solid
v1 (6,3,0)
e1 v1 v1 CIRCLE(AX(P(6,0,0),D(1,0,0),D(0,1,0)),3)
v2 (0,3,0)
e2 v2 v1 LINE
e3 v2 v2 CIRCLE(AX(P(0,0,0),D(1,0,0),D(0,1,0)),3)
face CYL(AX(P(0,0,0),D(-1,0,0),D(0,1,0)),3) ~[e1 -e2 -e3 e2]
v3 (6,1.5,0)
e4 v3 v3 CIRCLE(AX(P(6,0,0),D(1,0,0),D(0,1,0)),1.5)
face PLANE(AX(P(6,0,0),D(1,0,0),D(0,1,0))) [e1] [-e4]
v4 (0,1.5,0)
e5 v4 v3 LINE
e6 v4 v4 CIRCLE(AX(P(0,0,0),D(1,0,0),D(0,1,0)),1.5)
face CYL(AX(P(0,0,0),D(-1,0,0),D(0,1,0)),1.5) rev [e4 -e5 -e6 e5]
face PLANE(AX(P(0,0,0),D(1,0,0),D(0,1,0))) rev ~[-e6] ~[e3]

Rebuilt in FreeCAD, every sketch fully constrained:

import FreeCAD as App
import Part
import Sketcher

V = App.Vector
Q = App.Units.Quantity

doc = App.newDocument("Part")
body = doc.addObject("PartDesign::Body", "Body")

# Sketch on YZ plane
sketch1 = doc.addObject("Sketcher::SketchObject", "Sketch")
body.addObject(sketch1)
sketch1.AttachmentSupport = (doc.YZ_Plane, [""])
sketch1.MapMode = "FlatFace"
sketch1.addGeometry(Part.Circle(V(0, 0, 0), V(0, 0, 1), 3), False)
sketch1.addGeometry(Part.Circle(V(0, 0, 0), V(0, 0, 1), 1.5), False)
sketch1.addConstraint(Sketcher.Constraint("Coincident", 0, 3, -1, 1))
sketch1.addConstraint(Sketcher.Constraint("Coincident", 1, 3, -1, 1))
sketch1.addConstraint(Sketcher.Constraint("Diameter", 0, Q("6 mm")))
sketch1.addConstraint(Sketcher.Constraint("Diameter", 1, Q("3 mm")))
pad1 = doc.addObject("PartDesign::Pad", "Pad")
body.addObject(pad1)
pad1.Profile = sketch1
pad1.Length = 6

doc.recompute()
